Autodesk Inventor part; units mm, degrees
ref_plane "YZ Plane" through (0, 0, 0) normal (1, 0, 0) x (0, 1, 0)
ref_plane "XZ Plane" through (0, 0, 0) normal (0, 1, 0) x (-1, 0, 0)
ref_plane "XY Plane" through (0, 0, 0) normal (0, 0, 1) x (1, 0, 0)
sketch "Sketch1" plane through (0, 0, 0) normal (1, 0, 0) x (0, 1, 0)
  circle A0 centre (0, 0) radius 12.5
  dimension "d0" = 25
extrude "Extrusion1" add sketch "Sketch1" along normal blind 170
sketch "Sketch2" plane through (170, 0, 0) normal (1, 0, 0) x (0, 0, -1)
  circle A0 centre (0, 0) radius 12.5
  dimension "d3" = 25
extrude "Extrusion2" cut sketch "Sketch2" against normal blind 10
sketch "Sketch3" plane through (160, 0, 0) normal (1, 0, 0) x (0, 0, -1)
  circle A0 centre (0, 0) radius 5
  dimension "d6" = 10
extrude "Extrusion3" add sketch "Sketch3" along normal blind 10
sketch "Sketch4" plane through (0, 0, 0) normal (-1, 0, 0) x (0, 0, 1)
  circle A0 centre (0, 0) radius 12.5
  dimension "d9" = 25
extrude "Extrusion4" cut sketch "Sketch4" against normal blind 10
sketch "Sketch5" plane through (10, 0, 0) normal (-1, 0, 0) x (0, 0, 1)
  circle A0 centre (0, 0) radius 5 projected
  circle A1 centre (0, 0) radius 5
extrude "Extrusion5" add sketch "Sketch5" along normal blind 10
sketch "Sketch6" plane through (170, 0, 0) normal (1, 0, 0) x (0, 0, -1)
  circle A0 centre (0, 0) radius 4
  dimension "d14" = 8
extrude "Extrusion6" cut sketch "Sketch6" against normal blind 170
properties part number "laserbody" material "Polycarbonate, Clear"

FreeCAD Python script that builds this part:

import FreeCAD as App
import Part
import Sketcher
Q = App.Units.Quantity

doc = App.newDocument("Part")
body = doc.addObject("PartDesign::Body", "Body")

# Sketch on YZ plane
sketch1 = body.newObject("Sketcher::SketchObject", "Sketch")
sketch1.AttachmentSupport = (doc.getObject("YZ_Plane"), [""])
sketch1.MapMode = "FlatFace"
sketch1.addGeometry(Part.Circle(App.Vector(0, 0, 0), App.Vector(0, 0, 1), 12.5), False)
sketch1.addConstraint(Sketcher.Constraint("Coincident", 0, 3, -1, 1))
sketch1.addConstraint(Sketcher.Constraint("Diameter", 0, Q("25 mm")))
pad1 = body.newObject("PartDesign::Pad", "Pad")
pad1.Profile = sketch1
pad1.Length = 170

# Sketch on YZ plane
sketch2 = body.newObject("Sketcher::SketchObject", "Sketch001")
sketch2.AttachmentSupport = (doc.getObject("YZ_Plane"), [""])
sketch2.MapMode = "FlatFace"
sketch2.AttachmentOffset = App.Placement(App.Vector(0, 0, 170), App.Rotation())
sketch2.addGeometry(Part.Circle(App.Vector(0, 0, 0), App.Vector(0, 0, 1), 12.5), False)
sketch2.addConstraint(Sketcher.Constraint("Coincident", 0, 3, -1, 1))
sketch2.addConstraint(Sketcher.Constraint("Diameter", 0, Q("25 mm")))
pocket1 = body.newObject("PartDesign::Pocket", "Pocket")
pocket1.Profile = sketch2
pocket1.Length = 10

# Sketch on YZ plane
sketch3 = body.newObject("Sketcher::SketchObject", "Sketch002")
sketch3.AttachmentSupport = (doc.getObject("YZ_Plane"), [""])
sketch3.MapMode = "FlatFace"
sketch3.AttachmentOffset = App.Placement(App.Vector(0, 0, 160), App.Rotation())
sketch3.addGeometry(Part.Circle(App.Vector(0, 0, 0), App.Vector(0, 0, 1), 5), False)
sketch3.addConstraint(Sketcher.Constraint("Coincident", 0, 3, -1, 1))
sketch3.addConstraint(Sketcher.Constraint("Diameter", 0, Q("10 mm")))
pad2 = body.newObject("PartDesign::Pad", "Pad001")
pad2.Profile = sketch3
pad2.Length = 10

# Sketch on YZ plane
sketch4 = body.newObject("Sketcher::SketchObject", "Sketch003")
sketch4.AttachmentSupport = (doc.getObject("YZ_Plane"), [""])
sketch4.MapMode = "FlatFace"
sketch4.addGeometry(Part.Circle(App.Vector(0, 0, 0), App.Vector(0, 0, 1), 12.5), False)
sketch4.addConstraint(Sketcher.Constraint("Coincident", 0, 3, -1, 1))
sketch4.addConstraint(Sketcher.Constraint("Diameter", 0, Q("25 mm")))
pocket2 = body.newObject("PartDesign::Pocket", "Pocket001")
pocket2.Profile = sketch4
pocket2.Length = 10
pocket2.Reversed = True

# Sketch on YZ plane
sketch5 = body.newObject("Sketcher::SketchObject", "Sketch004")
sketch5.AttachmentSupport = (doc.getObject("YZ_Plane"), [""])
sketch5.MapMode = "FlatFace"
sketch5.AttachmentOffset = App.Placement(App.Vector(0, 0, 10), App.Rotation())
sketch5.addGeometry(Part.Circle(App.Vector(0, 0, 0), App.Vector(0, 0, 1), 5), False)
sketch5.addConstraint(Sketcher.Constraint("Coincident", 0, 3, -1, 1))
sketch5.addConstraint(Sketcher.Constraint("Diameter", 0, Q("10 mm")))
pad3 = body.newObject("PartDesign::Pad", "Pad002")
pad3.Profile = sketch5
pad3.Length = 10
pad3.Reversed = True

# Sketch on YZ plane
sketch6 = body.newObject("Sketcher::SketchObject", "Sketch005")
sketch6.AttachmentSupport = (doc.getObject("YZ_Plane"), [""])
sketch6.MapMode = "FlatFace"
sketch6.AttachmentOffset = App.Placement(App.Vector(0, 0, 170), App.Rotation())
sketch6.addGeometry(Part.Circle(App.Vector(0, 0, 0), App.Vector(0, 0, 1), 4), False)
sketch6.addConstraint(Sketcher.Constraint("Coincident", 0, 3, -1, 1))
sketch6.addConstraint(Sketcher.Constraint("Diameter", 0, Q("8 mm")))
pocket3 = body.newObject("PartDesign::Pocket", "Pocket002")
pocket3.Profile = sketch6
pocket3.Length = 170

doc.recompute()
